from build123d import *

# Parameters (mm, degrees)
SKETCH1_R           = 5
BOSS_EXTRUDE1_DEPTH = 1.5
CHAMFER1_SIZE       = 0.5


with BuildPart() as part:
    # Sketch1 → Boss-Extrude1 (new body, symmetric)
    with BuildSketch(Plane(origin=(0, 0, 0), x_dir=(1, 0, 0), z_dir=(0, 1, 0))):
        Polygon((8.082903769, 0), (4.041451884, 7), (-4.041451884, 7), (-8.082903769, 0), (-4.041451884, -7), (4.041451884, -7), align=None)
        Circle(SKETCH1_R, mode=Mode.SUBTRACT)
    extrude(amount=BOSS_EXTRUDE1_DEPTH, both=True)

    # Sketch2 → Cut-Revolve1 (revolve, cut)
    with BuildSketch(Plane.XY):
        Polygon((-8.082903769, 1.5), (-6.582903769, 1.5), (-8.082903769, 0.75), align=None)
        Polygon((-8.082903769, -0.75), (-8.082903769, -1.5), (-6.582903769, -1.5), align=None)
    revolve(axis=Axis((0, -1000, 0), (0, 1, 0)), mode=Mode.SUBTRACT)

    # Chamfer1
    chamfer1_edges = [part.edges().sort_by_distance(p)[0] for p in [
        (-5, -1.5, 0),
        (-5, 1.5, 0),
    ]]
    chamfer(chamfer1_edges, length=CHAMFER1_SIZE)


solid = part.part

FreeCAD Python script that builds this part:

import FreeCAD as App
import Part
import Sketcher
from FreeCAD import Vector
Q = App.Units.Quantity


def edges_at(feature, points):
    """Names of the edges that pass closest to the given points."""
    edges = feature.Shape.Edges
    near = lambda p: min(range(len(edges)), key=lambda i: edges[i].distToShape(Part.Vertex(*p))[0])
    return sorted({f"Edge{near(p) + 1}" for p in points})


def add_polygon(sketch, points):
    """Adds a closed chain of lines whose ends are joined by coincident constraints."""
    first, n = sketch.GeometryCount, len(points)
    for a, b in zip(points, points[1:] + points[:1]):
        sketch.addGeometry(Part.LineSegment(App.Vector(*a, 0), App.Vector(*b, 0)), False)
    for i in range(n):
        sketch.addConstraint(Sketcher.Constraint("Coincident", first + i, 2, first + (i + 1) % n, 1))

doc = App.newDocument("Part")
body = doc.addObject("PartDesign::Body", "Body")

sketch1 = body.newObject("Sketcher::SketchObject", "Sketch")
sketch1.AttachmentSupport = (doc.getObject("XZ_Plane"), [""])
sketch1.MapMode = "FlatFace"
add_polygon(sketch1, [(8.082904, 0), (4.041452, -7), (-4.041452, -7), (-8.082904, 0), (-4.041452, 7), (4.041452, 7)])
sketch1.addGeometry(Part.Circle(Vector(0, 0, 0), Vector(0, 0, 1), 5), False)
sketch1.addConstraint(Sketcher.Constraint("Horizontal", 1))
sketch1.addConstraint(Sketcher.Constraint("Horizontal", 4))
sketch1.addConstraint(Sketcher.Constraint("Coincident", 6, 3, -1, 1))
sketch1.addConstraint(Sketcher.Constraint("Symmetric", 0, 2, 3, 2, -1, 1))
sketch1.addConstraint(Sketcher.Constraint("Symmetric", 2, 2, 5, 2, -1, 1))
sketch1.addConstraint(Sketcher.Constraint("PointOnObject", 2, 2, -1))
sketch1.addConstraint(Sketcher.Constraint("Parallel", 2, 5))
sketch1.addConstraint(Sketcher.Constraint("Vertical", 1, 2, 3, 2))
sketch1.addConstraint(Sketcher.Constraint("Diameter", 6, Q("10 mm")))
sketch1.addConstraint(Sketcher.Constraint("Angle", 0, Q("-120 deg")))
sketch1.addConstraint(Sketcher.Constraint("DistanceY", 0, 2, -1, 1, Q("7 mm")))
sketch1.addConstraint(Sketcher.Constraint("DistanceX", 1, 2, 1, 1, Q("8.082904 mm")))
pad1 = body.newObject("PartDesign::Pad", "Pad")
pad1.Profile = sketch1
pad1.Length = 3
pad1.Midplane = True

sketch2 = body.newObject("Sketcher::SketchObject", "Sketch001")
sketch2.AttachmentSupport = (doc.getObject("XY_Plane"), [""])
sketch2.MapMode = "FlatFace"
add_polygon(sketch2, [(-6.582904, 1.5), (-8.082904, 1.5), (-8.082904, 0.75)])
add_polygon(sketch2, [(-8.082904, -0.75), (-8.082904, -1.5), (-6.582904, -1.5)])
sketch2.addConstraint(Sketcher.Constraint("Horizontal", 0))
sketch2.addConstraint(Sketcher.Constraint("Vertical", 1))
sketch2.addConstraint(Sketcher.Constraint("Vertical", 3))
sketch2.addConstraint(Sketcher.Constraint("Horizontal", 4))
sketch2.addConstraint(Sketcher.Constraint("Symmetric", 0, 2, 3, 2, -1))
sketch2.addConstraint(Sketcher.Constraint("Vertical", 2, 2, 4, 2))
sketch2.addConstraint(Sketcher.Constraint("Equal", 1, 3))
sketch2.addConstraint(Sketcher.Constraint("DistanceX", 0, 2, 0, 1, Q("1.5 mm")))
sketch2.addConstraint(Sketcher.Constraint("DistanceY", 3, 2, 0, 2, Q("3 mm")))
sketch2.addConstraint(Sketcher.Constraint("DistanceY", 1, 2, 1, 1, Q("0.75 mm")))
sketch2.addConstraint(Sketcher.Constraint("DistanceX", 0, 2, -1, 1, Q("8.082904 mm")))
groove = body.newObject("PartDesign::Groove", "Groove")
groove.Profile = sketch2
groove.ReferenceAxis = (sketch2, ["V_Axis"])
groove.Angle = 360
doc.recompute()

chamfer = body.newObject("PartDesign::Chamfer", "Chamfer")
chamfer.Base = (groove, edges_at(groove, [(-5, -1.5, 0), (-5, 1.5, 0)]))
chamfer.Size = 0.5

doc.recompute()
